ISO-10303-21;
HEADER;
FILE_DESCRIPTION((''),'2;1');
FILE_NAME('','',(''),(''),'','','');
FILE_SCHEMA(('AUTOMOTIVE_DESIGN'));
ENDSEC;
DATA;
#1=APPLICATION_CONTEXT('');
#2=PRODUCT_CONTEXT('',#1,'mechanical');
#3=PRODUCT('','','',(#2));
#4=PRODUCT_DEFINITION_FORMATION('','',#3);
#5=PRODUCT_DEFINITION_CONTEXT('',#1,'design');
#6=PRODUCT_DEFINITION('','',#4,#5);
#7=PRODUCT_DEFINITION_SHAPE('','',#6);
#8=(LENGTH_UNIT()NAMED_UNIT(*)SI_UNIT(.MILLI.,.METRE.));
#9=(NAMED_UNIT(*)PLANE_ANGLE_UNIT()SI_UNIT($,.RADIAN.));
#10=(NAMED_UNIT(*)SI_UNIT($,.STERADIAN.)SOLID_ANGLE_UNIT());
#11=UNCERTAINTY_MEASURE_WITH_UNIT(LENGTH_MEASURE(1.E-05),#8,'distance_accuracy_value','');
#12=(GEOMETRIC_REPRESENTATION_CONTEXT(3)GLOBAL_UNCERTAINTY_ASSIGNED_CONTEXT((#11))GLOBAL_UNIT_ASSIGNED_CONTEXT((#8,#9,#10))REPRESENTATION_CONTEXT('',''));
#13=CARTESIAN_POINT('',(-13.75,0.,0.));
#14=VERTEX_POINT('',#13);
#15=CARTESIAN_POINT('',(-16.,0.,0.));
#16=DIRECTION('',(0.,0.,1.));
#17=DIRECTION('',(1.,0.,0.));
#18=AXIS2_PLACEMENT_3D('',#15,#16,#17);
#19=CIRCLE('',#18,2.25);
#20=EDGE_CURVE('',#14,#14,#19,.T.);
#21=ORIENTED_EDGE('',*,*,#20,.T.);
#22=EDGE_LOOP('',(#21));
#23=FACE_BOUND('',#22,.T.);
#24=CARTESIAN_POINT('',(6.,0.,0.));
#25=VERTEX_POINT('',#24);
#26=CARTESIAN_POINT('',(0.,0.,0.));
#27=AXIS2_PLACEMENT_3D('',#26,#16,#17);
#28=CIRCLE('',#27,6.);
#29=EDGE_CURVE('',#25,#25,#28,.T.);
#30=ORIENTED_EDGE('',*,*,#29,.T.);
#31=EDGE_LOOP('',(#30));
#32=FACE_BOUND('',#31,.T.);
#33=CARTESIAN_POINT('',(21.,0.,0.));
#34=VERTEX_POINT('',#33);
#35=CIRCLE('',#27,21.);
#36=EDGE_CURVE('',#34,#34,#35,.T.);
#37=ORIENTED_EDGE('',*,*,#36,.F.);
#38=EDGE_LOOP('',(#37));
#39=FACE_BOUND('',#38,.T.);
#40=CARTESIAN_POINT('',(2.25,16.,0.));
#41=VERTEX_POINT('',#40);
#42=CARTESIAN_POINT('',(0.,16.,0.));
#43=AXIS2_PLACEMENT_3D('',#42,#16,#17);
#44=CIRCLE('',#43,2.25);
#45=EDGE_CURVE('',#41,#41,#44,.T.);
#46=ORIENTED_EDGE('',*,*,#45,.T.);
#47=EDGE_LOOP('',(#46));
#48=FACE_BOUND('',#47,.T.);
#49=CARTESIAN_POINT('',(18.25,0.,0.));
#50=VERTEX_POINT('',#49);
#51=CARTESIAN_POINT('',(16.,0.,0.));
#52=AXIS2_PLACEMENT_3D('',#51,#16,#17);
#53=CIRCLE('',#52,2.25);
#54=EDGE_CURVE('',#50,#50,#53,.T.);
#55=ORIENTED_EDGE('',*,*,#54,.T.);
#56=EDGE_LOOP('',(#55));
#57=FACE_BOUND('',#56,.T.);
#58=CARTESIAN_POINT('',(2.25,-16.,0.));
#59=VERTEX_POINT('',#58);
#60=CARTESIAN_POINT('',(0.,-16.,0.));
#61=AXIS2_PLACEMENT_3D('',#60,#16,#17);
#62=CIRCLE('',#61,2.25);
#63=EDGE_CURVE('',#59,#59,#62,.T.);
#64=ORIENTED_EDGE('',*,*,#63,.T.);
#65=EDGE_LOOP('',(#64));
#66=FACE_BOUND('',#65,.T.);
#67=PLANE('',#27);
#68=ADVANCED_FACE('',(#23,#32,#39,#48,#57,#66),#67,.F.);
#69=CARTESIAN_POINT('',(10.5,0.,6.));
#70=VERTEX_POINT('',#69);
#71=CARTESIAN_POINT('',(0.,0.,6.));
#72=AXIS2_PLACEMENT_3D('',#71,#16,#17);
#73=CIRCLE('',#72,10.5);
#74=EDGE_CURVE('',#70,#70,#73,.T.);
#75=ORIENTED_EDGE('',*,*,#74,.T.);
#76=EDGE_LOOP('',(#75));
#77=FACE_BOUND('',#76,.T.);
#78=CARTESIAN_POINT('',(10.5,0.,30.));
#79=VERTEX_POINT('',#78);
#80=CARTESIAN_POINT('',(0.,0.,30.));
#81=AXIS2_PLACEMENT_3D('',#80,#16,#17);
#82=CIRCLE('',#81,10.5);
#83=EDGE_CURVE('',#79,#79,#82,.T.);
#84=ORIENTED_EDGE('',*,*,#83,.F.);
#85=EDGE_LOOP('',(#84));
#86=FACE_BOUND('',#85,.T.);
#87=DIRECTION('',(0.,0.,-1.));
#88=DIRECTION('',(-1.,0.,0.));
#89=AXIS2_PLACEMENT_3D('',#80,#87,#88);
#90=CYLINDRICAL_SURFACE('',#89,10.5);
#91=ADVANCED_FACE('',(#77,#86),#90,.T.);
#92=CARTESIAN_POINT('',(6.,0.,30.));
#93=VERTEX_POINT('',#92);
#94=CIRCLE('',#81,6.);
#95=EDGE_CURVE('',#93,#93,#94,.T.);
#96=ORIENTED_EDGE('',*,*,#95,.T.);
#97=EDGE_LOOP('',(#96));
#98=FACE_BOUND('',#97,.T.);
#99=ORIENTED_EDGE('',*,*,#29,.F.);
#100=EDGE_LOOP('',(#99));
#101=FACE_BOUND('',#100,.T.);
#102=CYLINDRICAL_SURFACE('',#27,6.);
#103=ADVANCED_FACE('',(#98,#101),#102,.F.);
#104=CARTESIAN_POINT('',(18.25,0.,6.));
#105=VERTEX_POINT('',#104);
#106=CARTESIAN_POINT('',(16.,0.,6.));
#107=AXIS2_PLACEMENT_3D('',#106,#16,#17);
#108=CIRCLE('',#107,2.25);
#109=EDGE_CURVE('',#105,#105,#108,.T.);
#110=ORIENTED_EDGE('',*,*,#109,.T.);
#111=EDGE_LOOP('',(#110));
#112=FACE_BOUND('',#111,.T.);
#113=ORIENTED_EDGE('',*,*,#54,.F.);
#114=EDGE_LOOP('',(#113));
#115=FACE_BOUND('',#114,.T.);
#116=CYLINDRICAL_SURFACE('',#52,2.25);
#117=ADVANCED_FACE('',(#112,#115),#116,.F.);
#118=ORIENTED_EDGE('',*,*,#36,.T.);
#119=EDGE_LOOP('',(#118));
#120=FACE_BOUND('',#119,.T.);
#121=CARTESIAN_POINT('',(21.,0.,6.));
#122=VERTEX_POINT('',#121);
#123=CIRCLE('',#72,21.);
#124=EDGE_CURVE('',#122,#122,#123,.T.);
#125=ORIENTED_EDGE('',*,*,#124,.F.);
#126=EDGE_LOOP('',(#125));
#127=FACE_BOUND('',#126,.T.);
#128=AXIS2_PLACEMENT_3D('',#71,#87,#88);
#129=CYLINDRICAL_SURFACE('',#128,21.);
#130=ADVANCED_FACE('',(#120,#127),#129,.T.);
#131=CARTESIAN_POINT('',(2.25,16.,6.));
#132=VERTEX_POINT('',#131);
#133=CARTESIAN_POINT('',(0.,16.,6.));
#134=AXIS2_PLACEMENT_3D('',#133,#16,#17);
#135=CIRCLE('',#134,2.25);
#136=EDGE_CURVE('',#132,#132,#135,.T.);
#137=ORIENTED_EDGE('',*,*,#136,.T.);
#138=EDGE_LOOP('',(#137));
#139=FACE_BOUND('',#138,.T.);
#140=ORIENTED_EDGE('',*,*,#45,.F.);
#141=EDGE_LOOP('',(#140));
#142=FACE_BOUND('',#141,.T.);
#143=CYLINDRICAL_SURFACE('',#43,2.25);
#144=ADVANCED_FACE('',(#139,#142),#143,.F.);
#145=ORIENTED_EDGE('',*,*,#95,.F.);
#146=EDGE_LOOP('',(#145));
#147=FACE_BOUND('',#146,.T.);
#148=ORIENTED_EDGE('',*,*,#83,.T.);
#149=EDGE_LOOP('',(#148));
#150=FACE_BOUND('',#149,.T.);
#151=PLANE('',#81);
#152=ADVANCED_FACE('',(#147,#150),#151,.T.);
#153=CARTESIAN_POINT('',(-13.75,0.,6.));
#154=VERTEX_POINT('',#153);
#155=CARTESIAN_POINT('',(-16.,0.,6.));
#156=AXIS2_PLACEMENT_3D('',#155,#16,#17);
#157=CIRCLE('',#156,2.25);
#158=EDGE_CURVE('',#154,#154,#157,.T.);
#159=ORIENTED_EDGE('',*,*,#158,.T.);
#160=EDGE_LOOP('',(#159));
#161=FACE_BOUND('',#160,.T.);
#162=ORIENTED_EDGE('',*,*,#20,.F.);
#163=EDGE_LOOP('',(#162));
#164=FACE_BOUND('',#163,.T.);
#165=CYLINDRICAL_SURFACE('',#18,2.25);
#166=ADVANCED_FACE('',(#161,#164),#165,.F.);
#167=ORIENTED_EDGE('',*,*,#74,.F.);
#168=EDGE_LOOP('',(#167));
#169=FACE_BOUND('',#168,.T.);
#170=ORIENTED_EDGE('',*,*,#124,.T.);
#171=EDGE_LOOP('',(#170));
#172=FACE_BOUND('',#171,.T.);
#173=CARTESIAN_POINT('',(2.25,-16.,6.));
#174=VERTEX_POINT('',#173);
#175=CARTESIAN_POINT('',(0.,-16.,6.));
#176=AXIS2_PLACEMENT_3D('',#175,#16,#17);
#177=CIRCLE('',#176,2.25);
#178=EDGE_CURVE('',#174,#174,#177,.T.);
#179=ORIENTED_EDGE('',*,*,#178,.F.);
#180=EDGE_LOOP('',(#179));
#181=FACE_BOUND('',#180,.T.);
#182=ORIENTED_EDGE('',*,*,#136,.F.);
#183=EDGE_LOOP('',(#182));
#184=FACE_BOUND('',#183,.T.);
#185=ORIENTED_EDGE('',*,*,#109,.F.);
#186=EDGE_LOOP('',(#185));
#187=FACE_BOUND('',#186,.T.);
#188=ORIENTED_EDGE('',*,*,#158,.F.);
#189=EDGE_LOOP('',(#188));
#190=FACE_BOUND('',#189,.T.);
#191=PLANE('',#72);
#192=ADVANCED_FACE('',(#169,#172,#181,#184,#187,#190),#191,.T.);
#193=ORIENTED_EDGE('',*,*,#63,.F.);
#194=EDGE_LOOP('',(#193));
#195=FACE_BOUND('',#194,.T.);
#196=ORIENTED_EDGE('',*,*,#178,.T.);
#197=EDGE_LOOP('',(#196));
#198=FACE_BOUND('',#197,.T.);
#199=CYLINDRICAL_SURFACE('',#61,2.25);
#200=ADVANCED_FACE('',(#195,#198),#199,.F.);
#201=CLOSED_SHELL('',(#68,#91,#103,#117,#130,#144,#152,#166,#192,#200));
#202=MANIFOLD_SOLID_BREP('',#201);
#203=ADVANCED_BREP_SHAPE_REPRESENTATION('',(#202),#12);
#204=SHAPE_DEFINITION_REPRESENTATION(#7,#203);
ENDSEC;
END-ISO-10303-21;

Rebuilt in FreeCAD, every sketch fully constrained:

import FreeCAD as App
import Part
import Sketcher

doc = App.newDocument("Part")
body = doc.addObject("PartDesign::Body", "Body")

sketch1 = body.newObject("Sketcher::SketchObject", "Sketch")
sketch1.AttachmentSupport = (doc.getObject("XY_Plane"), [""])
sketch1.MapMode = "FlatFace"
sketch1.addGeometry(Part.Circle(App.Vector(0, 0, 0), App.Vector(0, 0, 1), 21), False)
sketch1.addConstraint(Sketcher.Constraint("Coincident", 0, 3, -1, 1))
sketch1.addConstraint(Sketcher.Constraint("Diameter", 0, 42.0))
pad1 = body.newObject("PartDesign::Pad", "Pad")
pad1.Profile = sketch1
pad1.Length = 6

sketch2 = body.newObject("Sketcher::SketchObject", "Sketch001")
sketch2.AttachmentSupport = (doc.getObject("XY_Plane"), [""])
sketch2.MapMode = "FlatFace"
sketch2.AttachmentOffset = App.Placement(App.Vector(0, 0, 6), App.Rotation())
sketch2.addGeometry(Part.Circle(App.Vector(0, 0, 0), App.Vector(0, 0, 1), 10.5), False)
sketch2.addConstraint(Sketcher.Constraint("Coincident", 0, 3, -1, 1))
sketch2.addConstraint(Sketcher.Constraint("Diameter", 0, 21.0))
pad2 = body.newObject("PartDesign::Pad", "Pad001")
pad2.Profile = sketch2
pad2.Length = 24

sketch3 = body.newObject("Sketcher::SketchObject", "Sketch002")
sketch3.AttachmentSupport = (doc.getObject("XY_Plane"), [""])
sketch3.MapMode = "FlatFace"
sketch3.AttachmentOffset = App.Placement(App.Vector(0, 0, 30), App.Rotation())
sketch3.addGeometry(Part.Circle(App.Vector(0, 0, 0), App.Vector(0, 0, 1), 6), False)
sketch3.addConstraint(Sketcher.Constraint("Coincident", 0, 3, -1, 1))
sketch3.addConstraint(Sketcher.Constraint("Diameter", 0, 12.0))
pocket1 = body.newObject("PartDesign::Pocket", "Pocket")
pocket1.Profile = sketch3
pocket1.Type = "ThroughAll"

sketch4 = body.newObject("Sketcher::SketchObject", "Sketch003")
sketch4.AttachmentSupport = (doc.getObject("XY_Plane"), [""])
sketch4.MapMode = "FlatFace"
sketch4.AttachmentOffset = App.Placement(App.Vector(0, 0, 6), App.Rotation())
sketch4.addGeometry(Part.Circle(App.Vector(-16, 0, 0), App.Vector(0, 0, 1), 2.25), False)
sketch4.addGeometry(Part.Circle(App.Vector(0, 16, 0), App.Vector(0, 0, 1), 2.25), False)
sketch4.addGeometry(Part.Circle(App.Vector(16, 0, 0), App.Vector(0, 0, 1), 2.25), False)
sketch4.addGeometry(Part.Circle(App.Vector(0, -16, 0), App.Vector(0, 0, 1), 2.25), False)
sketch4.addConstraint(Sketcher.Constraint("Equal", 0, 1))
sketch4.addConstraint(Sketcher.Constraint("Equal", 1, 2))
sketch4.addConstraint(Sketcher.Constraint("Equal", 2, 3))
sketch4.addConstraint(Sketcher.Constraint("Symmetric", 0, 3, 2, 3, -1, 1))
sketch4.addConstraint(Sketcher.Constraint("Symmetric", 1, 3, 3, 3, -1, 1))
sketch4.addConstraint(Sketcher.Constraint("PointOnObject", 0, 3, -1))
sketch4.addConstraint(Sketcher.Constraint("PointOnObject", 1, 3, -2))
sketch4.addConstraint(Sketcher.Constraint("Diameter", 0, 4.5))
sketch4.addConstraint(Sketcher.Constraint("DistanceX", 0, 3, -1, 1, 16.0))
sketch4.addConstraint(Sketcher.Constraint("DistanceY", -1, 1, 1, 3, 16.0))
pocket2 = body.newObject("PartDesign::Pocket", "Pocket001")
pocket2.Profile = sketch4
pocket2.Type = "ThroughAll"

doc.recompute()
